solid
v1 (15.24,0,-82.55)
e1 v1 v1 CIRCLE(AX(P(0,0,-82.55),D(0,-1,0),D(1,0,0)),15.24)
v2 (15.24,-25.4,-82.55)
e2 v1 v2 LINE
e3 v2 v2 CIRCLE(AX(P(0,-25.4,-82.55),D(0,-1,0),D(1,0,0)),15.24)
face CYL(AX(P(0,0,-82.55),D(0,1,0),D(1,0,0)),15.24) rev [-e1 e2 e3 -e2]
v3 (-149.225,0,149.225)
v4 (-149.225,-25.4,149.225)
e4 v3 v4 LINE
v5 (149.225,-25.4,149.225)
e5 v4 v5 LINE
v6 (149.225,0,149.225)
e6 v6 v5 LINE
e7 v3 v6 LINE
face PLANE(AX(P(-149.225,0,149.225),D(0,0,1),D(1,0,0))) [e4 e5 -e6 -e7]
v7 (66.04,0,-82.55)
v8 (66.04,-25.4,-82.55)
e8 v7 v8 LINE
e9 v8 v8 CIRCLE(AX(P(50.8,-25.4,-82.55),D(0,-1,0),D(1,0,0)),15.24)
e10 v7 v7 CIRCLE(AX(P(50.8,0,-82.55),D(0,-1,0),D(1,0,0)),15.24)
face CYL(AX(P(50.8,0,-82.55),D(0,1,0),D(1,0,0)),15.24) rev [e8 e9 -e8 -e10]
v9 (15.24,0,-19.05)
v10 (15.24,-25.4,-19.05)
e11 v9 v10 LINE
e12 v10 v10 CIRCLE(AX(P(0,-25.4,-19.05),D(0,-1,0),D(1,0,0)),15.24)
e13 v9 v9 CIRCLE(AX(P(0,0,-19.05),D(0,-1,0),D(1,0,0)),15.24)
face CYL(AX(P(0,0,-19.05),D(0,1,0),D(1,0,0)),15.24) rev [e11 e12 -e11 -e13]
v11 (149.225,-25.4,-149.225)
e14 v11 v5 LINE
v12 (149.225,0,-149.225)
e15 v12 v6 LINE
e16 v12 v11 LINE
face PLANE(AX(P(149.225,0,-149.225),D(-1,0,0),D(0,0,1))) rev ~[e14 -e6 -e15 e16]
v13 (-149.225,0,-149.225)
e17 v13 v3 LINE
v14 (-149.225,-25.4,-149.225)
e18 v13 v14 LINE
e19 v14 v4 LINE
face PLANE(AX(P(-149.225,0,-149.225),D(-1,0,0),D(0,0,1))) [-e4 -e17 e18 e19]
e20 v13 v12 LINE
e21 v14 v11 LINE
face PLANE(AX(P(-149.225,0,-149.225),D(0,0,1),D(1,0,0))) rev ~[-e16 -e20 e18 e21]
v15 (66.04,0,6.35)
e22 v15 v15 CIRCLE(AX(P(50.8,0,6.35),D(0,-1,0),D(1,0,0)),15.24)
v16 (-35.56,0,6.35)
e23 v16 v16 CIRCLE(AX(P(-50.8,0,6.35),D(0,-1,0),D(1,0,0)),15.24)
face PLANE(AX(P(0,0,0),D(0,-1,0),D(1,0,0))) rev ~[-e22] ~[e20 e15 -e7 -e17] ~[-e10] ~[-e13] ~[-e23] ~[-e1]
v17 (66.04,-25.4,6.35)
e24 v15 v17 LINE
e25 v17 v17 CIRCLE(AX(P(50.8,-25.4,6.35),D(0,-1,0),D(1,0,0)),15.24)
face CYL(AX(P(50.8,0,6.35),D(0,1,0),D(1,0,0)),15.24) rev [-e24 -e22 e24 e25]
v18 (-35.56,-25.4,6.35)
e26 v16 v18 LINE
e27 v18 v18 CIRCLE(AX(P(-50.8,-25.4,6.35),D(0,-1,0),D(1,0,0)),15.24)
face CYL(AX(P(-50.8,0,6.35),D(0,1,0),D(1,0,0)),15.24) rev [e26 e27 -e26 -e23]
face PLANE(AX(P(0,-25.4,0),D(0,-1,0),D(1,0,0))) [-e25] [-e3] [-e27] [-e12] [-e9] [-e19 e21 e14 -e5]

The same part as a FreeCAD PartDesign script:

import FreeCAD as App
import Part
import Sketcher
from FreeCAD import Vector
Q = App.Units.Quantity

doc = App.newDocument("Part")
body = doc.addObject("PartDesign::Body", "Body")

# Sketch on XZ plane
sketch1 = body.newObject("Sketcher::SketchObject", "Sketch")
sketch1.AttachmentSupport = (doc.getObject("XZ_Plane"), [""])
sketch1.MapMode = "FlatFace"
sketch1.addGeometry(Part.LineSegment(Vector(-149.225, 149.225, 0), Vector(-149.225, -149.225, 0)), False)
sketch1.addGeometry(Part.LineSegment(Vector(-149.225, -149.225, 0), Vector(149.225, -149.225, 0)), False)
sketch1.addGeometry(Part.LineSegment(Vector(149.225, -149.225, 0), Vector(149.225, 149.225, 0)), False)
sketch1.addGeometry(Part.LineSegment(Vector(149.225, 149.225, 0), Vector(-149.225, 149.225, 0)), False)
sketch1.addGeometry(Part.Circle(Vector(0, -82.55, 0), Vector(0, 0, 1), 15.24), False)
sketch1.addGeometry(Part.Circle(Vector(50.8, -82.55, 0), Vector(0, 0, 1), 15.24), False)
sketch1.addGeometry(Part.Circle(Vector(-50.8, 6.35, 0), Vector(0, 0, 1), 15.24), False)
sketch1.addGeometry(Part.Circle(Vector(0, -19.05, 0), Vector(0, 0, 1), 15.24), False)
sketch1.addGeometry(Part.Circle(Vector(50.8, 6.35, 0), Vector(0, 0, 1), 15.24), False)
sketch1.addConstraint(Sketcher.Constraint("Coincident", 0, 2, 1, 1))
sketch1.addConstraint(Sketcher.Constraint("Coincident", 1, 2, 2, 1))
sketch1.addConstraint(Sketcher.Constraint("Coincident", 2, 2, 3, 1))
sketch1.addConstraint(Sketcher.Constraint("Coincident", 3, 2, 0, 1))
sketch1.addConstraint(Sketcher.Constraint("Vertical", 0))
sketch1.addConstraint(Sketcher.Constraint("Horizontal", 1))
sketch1.addConstraint(Sketcher.Constraint("Vertical", 2))
sketch1.addConstraint(Sketcher.Constraint("Horizontal", 3))
sketch1.addConstraint(Sketcher.Constraint("Equal", 4, 5))
sketch1.addConstraint(Sketcher.Constraint("Equal", 5, 6))
sketch1.addConstraint(Sketcher.Constraint("Equal", 6, 7))
sketch1.addConstraint(Sketcher.Constraint("Equal", 7, 8))
sketch1.addConstraint(Sketcher.Constraint("Symmetric", 0, 2, 2, 2, -1, 1))
sketch1.addConstraint(Sketcher.Constraint("Symmetric", 6, 3, 8, 3, -2))
sketch1.addConstraint(Sketcher.Constraint("PointOnObject", 4, 3, -2))
sketch1.addConstraint(Sketcher.Constraint("PointOnObject", 7, 3, -2))
sketch1.addConstraint(Sketcher.Constraint("Horizontal", 4, 3, 5, 3))
sketch1.addConstraint(Sketcher.Constraint("Vertical", 5, 3, 8, 3))
sketch1.addConstraint(Sketcher.Constraint("Equal", 3, 0))
sketch1.addConstraint(Sketcher.Constraint("Diameter", 4, Q("1.2 in")))
sketch1.addConstraint(Sketcher.Constraint("DistanceX", -1, 1, 5, 3, Q("2 in")))
sketch1.addConstraint(Sketcher.Constraint("DistanceY", 7, 3, 6, 3, Q("1 in")))
sketch1.addConstraint(Sketcher.Constraint("DistanceX", 1, 1, 1, 2, Q("11.75 in")))
sketch1.addConstraint(Sketcher.Constraint("DistanceY", 4, 3, 6, 3, Q("3.5 in")))
sketch1.addConstraint(Sketcher.Constraint("DistanceY", 4, 3, -1, 1, Q("3.25 in")))
pad1 = body.newObject("PartDesign::Pad", "Pad")
pad1.Profile = sketch1
pad1.Length = Q("1 in")

doc.recompute()
